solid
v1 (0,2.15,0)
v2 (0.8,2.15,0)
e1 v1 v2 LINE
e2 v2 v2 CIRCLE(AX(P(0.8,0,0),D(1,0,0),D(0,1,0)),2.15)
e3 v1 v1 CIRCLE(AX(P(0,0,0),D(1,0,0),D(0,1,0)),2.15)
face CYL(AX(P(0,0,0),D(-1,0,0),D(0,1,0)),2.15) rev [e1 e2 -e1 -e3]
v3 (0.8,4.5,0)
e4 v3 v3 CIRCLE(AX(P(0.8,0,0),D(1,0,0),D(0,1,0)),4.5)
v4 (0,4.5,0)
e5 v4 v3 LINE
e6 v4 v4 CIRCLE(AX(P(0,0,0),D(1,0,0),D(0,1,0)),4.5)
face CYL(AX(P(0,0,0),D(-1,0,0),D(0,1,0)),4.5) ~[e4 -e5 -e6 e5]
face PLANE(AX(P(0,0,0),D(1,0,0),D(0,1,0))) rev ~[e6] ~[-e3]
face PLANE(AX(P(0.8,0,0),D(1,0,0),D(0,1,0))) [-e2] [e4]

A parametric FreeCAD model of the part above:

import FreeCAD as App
import Part
import Sketcher
from FreeCAD import Vector
Q = App.Units.Quantity

doc = App.newDocument("Part")
body = doc.addObject("PartDesign::Body", "Body")

sketch1 = body.newObject("Sketcher::SketchObject", "Sketch")
sketch1.AttachmentSupport = (doc.getObject("YZ_Plane"), [""])
sketch1.MapMode = "FlatFace"
sketch1.addGeometry([
    Part.Circle(Vector(0, 0, 0), Vector(0, 0, 1), 4.5),
    Part.Circle(Vector(0, 0, 0), Vector(0, 0, 1), 2.1),
], False)
sketch1.addConstraint([
    Sketcher.Constraint("Coincident", 0, 3, -1, 1),
    Sketcher.Constraint("Coincident", 1, 3, -1, 1),
    Sketcher.Constraint("Diameter", 0, Q("9 mm")),
    Sketcher.Constraint("Diameter", 1, Q("4.3 mm")),
])
pad1 = body.newObject("PartDesign::Pad", "Pad")
pad1.Profile = sketch1
pad1.Length = 0.8

doc.recompute()
